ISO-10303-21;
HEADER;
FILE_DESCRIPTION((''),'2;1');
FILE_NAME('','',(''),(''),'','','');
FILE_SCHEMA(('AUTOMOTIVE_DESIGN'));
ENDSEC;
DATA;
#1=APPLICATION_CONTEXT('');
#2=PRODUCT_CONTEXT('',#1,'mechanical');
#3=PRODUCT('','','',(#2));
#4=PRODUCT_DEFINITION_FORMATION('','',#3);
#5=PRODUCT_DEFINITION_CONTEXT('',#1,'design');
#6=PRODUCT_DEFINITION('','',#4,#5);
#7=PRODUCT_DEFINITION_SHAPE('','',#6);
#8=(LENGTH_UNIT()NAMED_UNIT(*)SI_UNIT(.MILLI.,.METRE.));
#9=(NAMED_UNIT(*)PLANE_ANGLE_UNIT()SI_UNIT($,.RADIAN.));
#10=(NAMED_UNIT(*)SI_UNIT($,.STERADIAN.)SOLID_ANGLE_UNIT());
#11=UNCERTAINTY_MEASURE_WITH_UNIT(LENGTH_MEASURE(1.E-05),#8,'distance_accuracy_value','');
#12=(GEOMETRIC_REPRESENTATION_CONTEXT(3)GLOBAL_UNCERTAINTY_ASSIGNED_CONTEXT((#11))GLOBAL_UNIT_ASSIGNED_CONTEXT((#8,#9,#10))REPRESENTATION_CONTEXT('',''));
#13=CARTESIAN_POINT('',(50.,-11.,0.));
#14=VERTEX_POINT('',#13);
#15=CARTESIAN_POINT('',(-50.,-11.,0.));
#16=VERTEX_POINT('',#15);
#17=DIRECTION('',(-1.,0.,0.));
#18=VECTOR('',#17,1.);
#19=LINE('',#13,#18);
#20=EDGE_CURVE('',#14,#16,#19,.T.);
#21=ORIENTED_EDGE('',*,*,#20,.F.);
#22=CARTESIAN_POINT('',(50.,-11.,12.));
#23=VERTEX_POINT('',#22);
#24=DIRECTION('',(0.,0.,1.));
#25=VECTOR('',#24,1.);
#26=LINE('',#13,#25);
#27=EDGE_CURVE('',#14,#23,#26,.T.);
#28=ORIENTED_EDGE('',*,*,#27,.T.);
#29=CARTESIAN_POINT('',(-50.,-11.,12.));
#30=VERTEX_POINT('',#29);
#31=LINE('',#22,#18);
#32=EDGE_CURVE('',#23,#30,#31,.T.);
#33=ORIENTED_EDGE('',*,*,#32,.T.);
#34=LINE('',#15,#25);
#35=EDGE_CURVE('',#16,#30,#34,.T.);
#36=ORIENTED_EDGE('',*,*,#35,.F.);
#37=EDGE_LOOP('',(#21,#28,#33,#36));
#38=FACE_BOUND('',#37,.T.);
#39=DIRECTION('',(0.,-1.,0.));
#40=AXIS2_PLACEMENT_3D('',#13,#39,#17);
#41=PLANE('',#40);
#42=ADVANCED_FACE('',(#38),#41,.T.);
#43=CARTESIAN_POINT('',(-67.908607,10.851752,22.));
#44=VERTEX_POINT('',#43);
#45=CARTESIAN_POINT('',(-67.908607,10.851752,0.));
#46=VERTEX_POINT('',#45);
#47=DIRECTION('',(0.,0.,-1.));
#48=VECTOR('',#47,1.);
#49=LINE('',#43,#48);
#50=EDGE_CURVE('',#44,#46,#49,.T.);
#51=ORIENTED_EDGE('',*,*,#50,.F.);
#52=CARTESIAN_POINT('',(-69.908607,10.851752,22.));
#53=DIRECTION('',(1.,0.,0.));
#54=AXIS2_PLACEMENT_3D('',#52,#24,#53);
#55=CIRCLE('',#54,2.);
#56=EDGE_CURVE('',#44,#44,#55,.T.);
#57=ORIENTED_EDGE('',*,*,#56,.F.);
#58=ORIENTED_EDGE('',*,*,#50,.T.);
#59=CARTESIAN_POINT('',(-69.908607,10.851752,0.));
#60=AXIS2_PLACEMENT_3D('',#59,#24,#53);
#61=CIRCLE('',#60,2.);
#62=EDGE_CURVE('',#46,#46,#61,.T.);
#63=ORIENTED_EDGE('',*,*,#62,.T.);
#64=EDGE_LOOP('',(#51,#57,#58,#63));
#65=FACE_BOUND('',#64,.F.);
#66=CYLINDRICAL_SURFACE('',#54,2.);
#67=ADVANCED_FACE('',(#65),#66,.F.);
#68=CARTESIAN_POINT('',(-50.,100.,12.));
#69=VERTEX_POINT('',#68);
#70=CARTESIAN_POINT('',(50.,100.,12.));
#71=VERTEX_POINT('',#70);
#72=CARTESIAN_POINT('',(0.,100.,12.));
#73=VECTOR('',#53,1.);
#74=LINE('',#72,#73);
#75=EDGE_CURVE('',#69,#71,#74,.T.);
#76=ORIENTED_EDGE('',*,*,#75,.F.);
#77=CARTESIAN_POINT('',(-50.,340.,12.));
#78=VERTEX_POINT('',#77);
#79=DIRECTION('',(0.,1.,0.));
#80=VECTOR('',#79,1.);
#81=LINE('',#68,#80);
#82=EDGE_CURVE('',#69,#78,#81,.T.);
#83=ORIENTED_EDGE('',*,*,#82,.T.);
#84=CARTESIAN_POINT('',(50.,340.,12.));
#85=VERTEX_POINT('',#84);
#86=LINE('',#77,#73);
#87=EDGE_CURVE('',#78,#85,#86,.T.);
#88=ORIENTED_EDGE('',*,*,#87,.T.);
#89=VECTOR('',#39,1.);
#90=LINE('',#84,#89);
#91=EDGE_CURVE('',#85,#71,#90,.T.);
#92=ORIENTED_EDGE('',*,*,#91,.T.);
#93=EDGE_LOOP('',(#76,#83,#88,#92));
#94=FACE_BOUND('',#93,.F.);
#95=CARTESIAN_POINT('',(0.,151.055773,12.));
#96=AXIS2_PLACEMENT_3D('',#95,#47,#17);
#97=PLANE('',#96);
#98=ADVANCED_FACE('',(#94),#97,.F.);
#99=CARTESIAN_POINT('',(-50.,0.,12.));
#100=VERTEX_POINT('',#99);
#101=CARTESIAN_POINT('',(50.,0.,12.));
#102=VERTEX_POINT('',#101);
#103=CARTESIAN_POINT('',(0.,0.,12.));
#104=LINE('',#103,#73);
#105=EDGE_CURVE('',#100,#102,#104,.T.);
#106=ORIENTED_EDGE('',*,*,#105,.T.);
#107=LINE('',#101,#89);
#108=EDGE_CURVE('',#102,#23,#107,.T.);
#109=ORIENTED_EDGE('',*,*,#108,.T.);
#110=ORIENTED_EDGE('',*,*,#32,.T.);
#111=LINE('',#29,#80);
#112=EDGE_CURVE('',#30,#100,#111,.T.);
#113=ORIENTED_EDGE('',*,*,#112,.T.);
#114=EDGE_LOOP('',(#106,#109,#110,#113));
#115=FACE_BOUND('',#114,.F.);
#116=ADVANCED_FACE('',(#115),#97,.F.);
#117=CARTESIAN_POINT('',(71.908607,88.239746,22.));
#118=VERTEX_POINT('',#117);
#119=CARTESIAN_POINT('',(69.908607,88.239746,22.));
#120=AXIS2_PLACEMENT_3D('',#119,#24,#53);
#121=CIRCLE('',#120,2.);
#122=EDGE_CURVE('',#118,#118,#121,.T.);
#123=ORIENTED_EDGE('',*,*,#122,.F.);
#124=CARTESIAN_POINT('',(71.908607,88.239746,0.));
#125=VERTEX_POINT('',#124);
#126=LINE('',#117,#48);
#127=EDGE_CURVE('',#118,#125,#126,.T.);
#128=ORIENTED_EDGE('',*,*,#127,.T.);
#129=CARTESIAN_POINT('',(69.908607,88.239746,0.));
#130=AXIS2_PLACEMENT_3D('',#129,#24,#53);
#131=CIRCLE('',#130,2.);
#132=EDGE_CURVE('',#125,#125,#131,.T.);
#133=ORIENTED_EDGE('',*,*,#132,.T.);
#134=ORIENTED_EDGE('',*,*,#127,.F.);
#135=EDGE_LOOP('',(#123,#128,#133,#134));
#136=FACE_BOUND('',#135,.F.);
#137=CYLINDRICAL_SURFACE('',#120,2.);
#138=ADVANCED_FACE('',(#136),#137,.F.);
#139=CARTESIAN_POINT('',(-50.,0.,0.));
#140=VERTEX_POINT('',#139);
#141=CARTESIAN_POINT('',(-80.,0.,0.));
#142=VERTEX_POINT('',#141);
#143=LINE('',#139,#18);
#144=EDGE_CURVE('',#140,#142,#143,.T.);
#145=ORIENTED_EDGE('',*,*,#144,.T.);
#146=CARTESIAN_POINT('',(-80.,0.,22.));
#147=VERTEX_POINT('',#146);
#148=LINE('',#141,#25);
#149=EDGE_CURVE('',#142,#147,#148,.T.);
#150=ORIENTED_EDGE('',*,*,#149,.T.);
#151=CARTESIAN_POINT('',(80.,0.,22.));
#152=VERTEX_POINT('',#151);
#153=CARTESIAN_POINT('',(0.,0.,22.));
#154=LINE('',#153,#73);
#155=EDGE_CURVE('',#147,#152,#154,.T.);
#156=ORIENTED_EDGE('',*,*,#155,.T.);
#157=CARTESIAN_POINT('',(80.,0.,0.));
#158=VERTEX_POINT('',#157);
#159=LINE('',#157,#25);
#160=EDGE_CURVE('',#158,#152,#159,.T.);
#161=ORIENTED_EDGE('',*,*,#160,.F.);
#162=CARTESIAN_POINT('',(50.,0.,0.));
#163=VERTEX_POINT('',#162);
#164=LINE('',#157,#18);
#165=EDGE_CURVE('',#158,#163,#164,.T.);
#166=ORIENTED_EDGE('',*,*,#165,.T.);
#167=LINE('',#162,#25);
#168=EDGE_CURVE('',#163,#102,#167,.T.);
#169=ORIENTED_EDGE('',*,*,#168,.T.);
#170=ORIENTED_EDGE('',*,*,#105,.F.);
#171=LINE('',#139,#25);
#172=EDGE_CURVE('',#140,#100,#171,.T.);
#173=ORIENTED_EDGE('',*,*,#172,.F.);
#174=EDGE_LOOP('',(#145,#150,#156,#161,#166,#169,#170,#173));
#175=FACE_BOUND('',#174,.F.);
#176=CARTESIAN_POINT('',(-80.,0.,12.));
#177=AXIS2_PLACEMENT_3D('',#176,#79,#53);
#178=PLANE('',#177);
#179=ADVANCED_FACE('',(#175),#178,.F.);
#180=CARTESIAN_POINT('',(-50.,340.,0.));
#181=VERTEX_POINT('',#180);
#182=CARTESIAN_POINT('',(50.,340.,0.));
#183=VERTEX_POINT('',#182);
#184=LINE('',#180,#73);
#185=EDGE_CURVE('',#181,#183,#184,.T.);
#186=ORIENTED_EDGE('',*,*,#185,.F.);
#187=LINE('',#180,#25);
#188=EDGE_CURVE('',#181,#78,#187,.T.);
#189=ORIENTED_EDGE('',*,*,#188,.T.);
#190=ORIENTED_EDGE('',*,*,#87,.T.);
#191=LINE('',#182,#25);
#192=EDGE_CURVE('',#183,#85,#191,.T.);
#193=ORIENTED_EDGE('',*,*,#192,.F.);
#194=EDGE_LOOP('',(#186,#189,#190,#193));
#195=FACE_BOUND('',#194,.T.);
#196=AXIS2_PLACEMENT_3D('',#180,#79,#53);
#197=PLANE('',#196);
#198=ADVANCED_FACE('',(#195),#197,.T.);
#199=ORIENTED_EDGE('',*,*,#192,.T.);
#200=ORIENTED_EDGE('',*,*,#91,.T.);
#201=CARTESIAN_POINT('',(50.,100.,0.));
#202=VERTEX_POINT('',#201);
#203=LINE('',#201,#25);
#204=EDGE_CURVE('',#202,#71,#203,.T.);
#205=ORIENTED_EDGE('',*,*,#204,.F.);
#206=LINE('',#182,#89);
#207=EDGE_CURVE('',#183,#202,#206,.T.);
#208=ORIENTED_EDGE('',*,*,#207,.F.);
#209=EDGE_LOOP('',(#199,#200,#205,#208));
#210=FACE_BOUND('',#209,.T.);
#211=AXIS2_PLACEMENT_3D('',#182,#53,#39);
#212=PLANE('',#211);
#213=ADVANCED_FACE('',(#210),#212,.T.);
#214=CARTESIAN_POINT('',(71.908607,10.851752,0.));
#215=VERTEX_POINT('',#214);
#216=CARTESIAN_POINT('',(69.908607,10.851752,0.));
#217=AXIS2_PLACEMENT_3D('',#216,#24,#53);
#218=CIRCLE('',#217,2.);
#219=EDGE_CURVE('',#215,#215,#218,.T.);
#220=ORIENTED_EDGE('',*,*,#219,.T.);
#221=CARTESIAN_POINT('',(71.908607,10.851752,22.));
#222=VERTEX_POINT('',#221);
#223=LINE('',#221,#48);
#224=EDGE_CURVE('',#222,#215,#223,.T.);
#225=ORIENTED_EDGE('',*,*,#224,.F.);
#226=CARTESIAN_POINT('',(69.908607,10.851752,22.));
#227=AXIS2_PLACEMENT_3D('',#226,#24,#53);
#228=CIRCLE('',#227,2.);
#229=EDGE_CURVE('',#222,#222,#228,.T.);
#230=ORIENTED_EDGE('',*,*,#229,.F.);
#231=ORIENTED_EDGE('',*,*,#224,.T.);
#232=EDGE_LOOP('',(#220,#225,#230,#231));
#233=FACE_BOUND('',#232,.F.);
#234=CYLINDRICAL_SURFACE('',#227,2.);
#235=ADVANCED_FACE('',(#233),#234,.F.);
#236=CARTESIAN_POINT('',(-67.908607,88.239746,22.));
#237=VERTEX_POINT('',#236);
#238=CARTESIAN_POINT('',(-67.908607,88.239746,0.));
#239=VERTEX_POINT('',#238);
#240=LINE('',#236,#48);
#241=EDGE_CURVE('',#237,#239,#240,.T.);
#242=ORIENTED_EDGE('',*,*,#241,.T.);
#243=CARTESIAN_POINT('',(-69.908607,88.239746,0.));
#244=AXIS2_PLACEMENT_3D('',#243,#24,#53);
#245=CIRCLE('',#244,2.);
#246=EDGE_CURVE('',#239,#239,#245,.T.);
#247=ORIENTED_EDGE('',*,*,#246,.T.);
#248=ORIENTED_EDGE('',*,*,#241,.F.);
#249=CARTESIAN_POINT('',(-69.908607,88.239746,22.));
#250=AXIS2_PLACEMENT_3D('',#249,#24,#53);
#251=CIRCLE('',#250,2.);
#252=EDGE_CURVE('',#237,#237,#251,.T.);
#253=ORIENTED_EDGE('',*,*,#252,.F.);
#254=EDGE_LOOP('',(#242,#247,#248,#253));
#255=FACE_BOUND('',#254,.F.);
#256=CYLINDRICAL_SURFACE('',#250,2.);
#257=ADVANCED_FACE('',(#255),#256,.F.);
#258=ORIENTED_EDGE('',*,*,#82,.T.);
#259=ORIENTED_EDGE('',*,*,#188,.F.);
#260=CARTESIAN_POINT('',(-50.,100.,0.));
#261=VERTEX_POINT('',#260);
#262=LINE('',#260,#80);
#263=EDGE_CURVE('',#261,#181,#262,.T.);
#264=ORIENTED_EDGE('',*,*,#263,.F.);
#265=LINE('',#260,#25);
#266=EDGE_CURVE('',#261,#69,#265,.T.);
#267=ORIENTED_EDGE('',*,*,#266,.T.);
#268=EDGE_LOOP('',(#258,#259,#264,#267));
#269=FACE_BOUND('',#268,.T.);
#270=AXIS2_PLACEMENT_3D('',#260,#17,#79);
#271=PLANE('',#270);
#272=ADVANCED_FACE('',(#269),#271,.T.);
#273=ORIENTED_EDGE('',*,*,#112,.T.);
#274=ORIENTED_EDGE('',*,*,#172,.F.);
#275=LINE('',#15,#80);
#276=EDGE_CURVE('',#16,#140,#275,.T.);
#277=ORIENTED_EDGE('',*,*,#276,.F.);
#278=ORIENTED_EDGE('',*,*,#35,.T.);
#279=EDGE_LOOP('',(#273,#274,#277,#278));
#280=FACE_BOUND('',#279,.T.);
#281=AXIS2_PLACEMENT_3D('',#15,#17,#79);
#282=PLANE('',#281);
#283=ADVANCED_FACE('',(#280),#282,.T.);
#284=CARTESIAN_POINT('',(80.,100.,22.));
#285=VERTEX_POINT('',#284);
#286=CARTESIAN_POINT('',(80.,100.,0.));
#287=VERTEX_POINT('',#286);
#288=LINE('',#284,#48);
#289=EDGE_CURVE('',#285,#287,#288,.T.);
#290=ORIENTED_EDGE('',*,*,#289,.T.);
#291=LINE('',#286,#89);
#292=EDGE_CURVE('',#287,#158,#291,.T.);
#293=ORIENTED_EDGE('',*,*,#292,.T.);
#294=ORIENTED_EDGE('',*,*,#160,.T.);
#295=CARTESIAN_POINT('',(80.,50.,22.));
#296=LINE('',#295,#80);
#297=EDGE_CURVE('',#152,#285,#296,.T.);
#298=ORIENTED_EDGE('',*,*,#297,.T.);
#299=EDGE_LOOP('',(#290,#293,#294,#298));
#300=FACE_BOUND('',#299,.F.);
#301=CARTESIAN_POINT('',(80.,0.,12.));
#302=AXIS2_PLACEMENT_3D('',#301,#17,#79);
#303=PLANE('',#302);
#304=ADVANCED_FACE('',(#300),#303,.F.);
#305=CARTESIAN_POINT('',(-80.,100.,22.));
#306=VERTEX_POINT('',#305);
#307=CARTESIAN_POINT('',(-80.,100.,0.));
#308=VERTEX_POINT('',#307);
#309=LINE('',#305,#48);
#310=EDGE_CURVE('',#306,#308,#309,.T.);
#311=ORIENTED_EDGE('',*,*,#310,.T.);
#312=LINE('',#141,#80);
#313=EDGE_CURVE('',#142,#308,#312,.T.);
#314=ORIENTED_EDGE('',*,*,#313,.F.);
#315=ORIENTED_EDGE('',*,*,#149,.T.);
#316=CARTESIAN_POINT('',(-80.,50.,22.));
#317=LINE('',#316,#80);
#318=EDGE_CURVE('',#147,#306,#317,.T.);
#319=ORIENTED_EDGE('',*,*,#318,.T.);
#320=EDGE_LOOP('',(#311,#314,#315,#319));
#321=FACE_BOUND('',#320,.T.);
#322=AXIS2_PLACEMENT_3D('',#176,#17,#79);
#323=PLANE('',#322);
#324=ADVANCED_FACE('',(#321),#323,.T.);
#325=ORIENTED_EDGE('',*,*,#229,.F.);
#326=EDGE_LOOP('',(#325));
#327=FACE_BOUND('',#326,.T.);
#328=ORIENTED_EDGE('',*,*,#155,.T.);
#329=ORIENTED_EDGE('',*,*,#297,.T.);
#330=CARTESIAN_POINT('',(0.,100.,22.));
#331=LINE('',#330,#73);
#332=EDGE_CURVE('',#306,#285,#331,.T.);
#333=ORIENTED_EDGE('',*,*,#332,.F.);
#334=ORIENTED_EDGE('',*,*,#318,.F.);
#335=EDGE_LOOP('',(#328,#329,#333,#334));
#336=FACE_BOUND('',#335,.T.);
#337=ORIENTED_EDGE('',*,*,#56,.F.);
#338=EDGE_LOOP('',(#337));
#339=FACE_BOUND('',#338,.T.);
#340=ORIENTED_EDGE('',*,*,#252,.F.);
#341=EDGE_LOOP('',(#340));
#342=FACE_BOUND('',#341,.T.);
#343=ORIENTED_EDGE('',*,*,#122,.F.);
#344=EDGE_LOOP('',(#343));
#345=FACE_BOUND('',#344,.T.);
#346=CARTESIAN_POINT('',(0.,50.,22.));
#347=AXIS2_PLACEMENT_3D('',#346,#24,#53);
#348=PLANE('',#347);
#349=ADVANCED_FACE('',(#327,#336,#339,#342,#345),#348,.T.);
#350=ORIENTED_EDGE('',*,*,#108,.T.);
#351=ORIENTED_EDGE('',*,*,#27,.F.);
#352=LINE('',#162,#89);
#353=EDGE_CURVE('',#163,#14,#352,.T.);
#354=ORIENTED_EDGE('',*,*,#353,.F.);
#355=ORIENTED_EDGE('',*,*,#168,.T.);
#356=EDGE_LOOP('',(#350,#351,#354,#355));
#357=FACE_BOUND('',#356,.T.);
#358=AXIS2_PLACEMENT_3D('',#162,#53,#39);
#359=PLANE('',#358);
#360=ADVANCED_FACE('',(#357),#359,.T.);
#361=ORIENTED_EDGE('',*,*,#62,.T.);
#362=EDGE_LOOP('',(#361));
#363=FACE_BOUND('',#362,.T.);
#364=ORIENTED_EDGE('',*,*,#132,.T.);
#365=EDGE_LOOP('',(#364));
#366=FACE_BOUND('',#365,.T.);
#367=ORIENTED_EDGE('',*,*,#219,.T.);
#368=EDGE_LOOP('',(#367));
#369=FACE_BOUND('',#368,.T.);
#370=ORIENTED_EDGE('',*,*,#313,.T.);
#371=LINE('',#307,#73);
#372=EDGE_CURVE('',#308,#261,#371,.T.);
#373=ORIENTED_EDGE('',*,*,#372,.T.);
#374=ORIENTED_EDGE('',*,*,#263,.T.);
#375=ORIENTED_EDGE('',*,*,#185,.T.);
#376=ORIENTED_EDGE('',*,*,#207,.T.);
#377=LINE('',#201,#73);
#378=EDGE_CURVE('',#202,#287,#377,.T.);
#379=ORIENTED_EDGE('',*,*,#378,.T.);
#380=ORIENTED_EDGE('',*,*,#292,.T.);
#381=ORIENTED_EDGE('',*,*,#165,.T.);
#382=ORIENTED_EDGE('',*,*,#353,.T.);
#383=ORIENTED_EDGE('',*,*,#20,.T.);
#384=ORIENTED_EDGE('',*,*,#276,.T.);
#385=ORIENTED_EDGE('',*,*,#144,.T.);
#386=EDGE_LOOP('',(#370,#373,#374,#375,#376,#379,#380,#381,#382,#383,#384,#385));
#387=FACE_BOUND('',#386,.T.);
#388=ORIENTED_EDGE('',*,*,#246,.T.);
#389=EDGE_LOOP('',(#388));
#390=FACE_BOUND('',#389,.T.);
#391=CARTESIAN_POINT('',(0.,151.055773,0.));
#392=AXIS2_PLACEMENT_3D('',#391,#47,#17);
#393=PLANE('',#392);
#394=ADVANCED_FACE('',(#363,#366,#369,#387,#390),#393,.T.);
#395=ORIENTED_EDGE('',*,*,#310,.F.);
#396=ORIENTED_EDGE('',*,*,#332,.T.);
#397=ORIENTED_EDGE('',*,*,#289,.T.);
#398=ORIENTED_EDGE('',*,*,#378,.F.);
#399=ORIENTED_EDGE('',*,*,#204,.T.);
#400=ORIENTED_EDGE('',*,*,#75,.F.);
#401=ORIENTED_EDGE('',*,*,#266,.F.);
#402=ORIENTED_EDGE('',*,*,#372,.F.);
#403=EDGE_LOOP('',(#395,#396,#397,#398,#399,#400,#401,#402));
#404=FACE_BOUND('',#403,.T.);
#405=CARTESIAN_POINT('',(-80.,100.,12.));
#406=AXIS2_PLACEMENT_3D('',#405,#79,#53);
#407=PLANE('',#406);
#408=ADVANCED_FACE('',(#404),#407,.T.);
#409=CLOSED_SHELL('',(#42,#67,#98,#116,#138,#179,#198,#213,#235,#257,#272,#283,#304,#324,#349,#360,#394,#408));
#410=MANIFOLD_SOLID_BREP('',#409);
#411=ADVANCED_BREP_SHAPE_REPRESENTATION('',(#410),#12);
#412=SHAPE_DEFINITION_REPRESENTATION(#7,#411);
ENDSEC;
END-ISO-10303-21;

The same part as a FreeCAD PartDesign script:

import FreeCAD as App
import Part
import Sketcher

V = App.Vector

doc = App.newDocument("Part")
body = doc.addObject("PartDesign::Body", "Body")

# Sketch on XY plane
sketch1 = body.newObject("Sketcher::SketchObject", "Sketch")
sketch1.AttachmentSupport = (doc.getObject("XY_Plane"), [""])
sketch1.MapMode = "FlatFace"
sketch1.addGeometry([
    Part.LineSegment(V(50, 340, 0), V(-50, 340, 0)),  # 0
    Part.LineSegment(V(-50, 340, 0), V(-50, 100, 0)),  # 1
    Part.LineSegment(V(-50, 100, 0), V(-80, 100, 0)),  # 2
    Part.LineSegment(V(-80, 100, 0), V(-80, 0, 0)),  # 3
    Part.LineSegment(V(-80, 0, 0), V(-50, 0, 0)),  # 4
    Part.LineSegment(V(-50, 0, 0), V(-50, -11, 0)),  # 5
    Part.LineSegment(V(-50, -11, 0), V(50, -11, 0)),  # 6
    Part.LineSegment(V(50, -11, 0), V(50, 0, 0)),  # 7
    Part.LineSegment(V(50, 0, 0), V(80, 0, 0)),  # 8
    Part.LineSegment(V(80, 0, 0), V(80, 100, 0)),  # 9
    Part.LineSegment(V(80, 100, 0), V(50, 100, 0)),  # 10
    Part.LineSegment(V(50, 100, 0), V(50, 340, 0)),  # 11
], False)
sketch1.addConstraint([
    Sketcher.Constraint("Coincident", 0, 2, 1, 1),
    Sketcher.Constraint("Coincident", 1, 2, 2, 1),
    Sketcher.Constraint("Coincident", 2, 2, 3, 1),
    Sketcher.Constraint("Coincident", 3, 2, 4, 1),
    Sketcher.Constraint("Coincident", 4, 2, 5, 1),
    Sketcher.Constraint("Coincident", 5, 2, 6, 1),
    Sketcher.Constraint("Coincident", 6, 2, 7, 1),
    Sketcher.Constraint("Coincident", 7, 2, 8, 1),
    Sketcher.Constraint("Coincident", 8, 2, 9, 1),
    Sketcher.Constraint("Coincident", 9, 2, 10, 1),
    Sketcher.Constraint("Coincident", 10, 2, 11, 1),
    Sketcher.Constraint("Coincident", 11, 2, 0, 1),
    Sketcher.Constraint("Horizontal", 0),
    Sketcher.Constraint("Vertical", 1),
    Sketcher.Constraint("Horizontal", 2),
    Sketcher.Constraint("Vertical", 3),
    Sketcher.Constraint("Horizontal", 4),
    Sketcher.Constraint("Vertical", 5),
    Sketcher.Constraint("Horizontal", 6),
    Sketcher.Constraint("Vertical", 7),
    Sketcher.Constraint("Horizontal", 8),
    Sketcher.Constraint("Vertical", 9),
    Sketcher.Constraint("Horizontal", 10),
    Sketcher.Constraint("Vertical", 11),
    Sketcher.Constraint("Symmetric", 4, 2, 7, 2, -1, 1),
    Sketcher.Constraint("Symmetric", 3, 2, 8, 2, -2),
    Sketcher.Constraint("Symmetric", 1, 2, 10, 2, -2),
    Sketcher.Constraint("Vertical", 1, 2, 4, 2),
    Sketcher.Constraint("Equal", 6, 3),
    Sketcher.Constraint("DistanceX", 0, 2, 0, 1, 100.0),
    Sketcher.Constraint("DistanceX", 2, 2, 2, 1, 30.0),
    Sketcher.Constraint("DistanceY", 1, 2, 1, 1, 240.0),
    Sketcher.Constraint("DistanceY", 5, 2, 5, 1, 11.0),
])
pad1 = body.newObject("PartDesign::Pad", "Pad")
pad1.Profile = sketch1
pad1.Length = 12

# Sketch on XY plane
sketch2 = body.newObject("Sketcher::SketchObject", "Sketch001")
sketch2.AttachmentSupport = (doc.getObject("XY_Plane"), [""])
sketch2.MapMode = "FlatFace"
sketch2.AttachmentOffset = App.Placement(V(0, 0, 12), App.Rotation())
sketch2.addGeometry([
    Part.LineSegment(V(-80, 100, 0), V(-80, 0, 0)),
    Part.LineSegment(V(-80, 0, 0), V(80, 0, 0)),
    Part.LineSegment(V(80, 0, 0), V(80, 100, 0)),
    Part.LineSegment(V(80, 100, 0), V(-80, 100, 0)),
], False)
sketch2.addConstraint([
    Sketcher.Constraint("Coincident", 0, 2, 1, 1),
    Sketcher.Constraint("Coincident", 1, 2, 2, 1),
    Sketcher.Constraint("Coincident", 2, 2, 3, 1),
    Sketcher.Constraint("Coincident", 3, 2, 0, 1),
    Sketcher.Constraint("Vertical", 0),
    Sketcher.Constraint("Horizontal", 1),
    Sketcher.Constraint("Vertical", 2),
    Sketcher.Constraint("Horizontal", 3),
    Sketcher.Constraint("Symmetric", 0, 2, 1, 2, -1, 1),
    Sketcher.Constraint("DistanceX", 1, 1, 1, 2, 160.0),
    Sketcher.Constraint("DistanceY", 0, 2, 0, 1, 100.0),
])
pad2 = body.newObject("PartDesign::Pad", "Pad001")
pad2.Profile = sketch2
pad2.Length = 10

# Sketch on XY plane
sketch3 = body.newObject("Sketcher::SketchObject", "Sketch002")
sketch3.AttachmentSupport = (doc.getObject("XY_Plane"), [""])
sketch3.MapMode = "FlatFace"
sketch3.AttachmentOffset = App.Placement(V(0, 0, 22), App.Rotation())
sketch3.addGeometry([
    Part.Circle(V(-69.9, 88.2, 0), V(0, 0, 1), 2),
    Part.Circle(V(69.9, 88.2, 0), V(0, 0, 1), 2),
    Part.Circle(V(69.9, 10.9, 0), V(0, 0, 1), 2),
    Part.Circle(V(-69.9, 10.9, 0), V(0, 0, 1), 2),
], False)
sketch3.addConstraint([
    Sketcher.Constraint("Equal", 0, 1),
    Sketcher.Constraint("Equal", 1, 2),
    Sketcher.Constraint("Equal", 2, 3),
    Sketcher.Constraint("Symmetric", 0, 3, 1, 3, -2),
    Sketcher.Constraint("Symmetric", 2, 3, 3, 3, -2),
    Sketcher.Constraint("Vertical", 1, 3, 2, 3),
    Sketcher.Constraint("Diameter", 0, 4.0),
    Sketcher.Constraint("DistanceX", 0, 3, -1, 1, 69.908607),
    Sketcher.Constraint("DistanceY", -1, 1, 0, 3, 88.239746),
    Sketcher.Constraint("DistanceY", -1, 1, 2, 3, 10.851752),
])
pocket1 = body.newObject("PartDesign::Pocket", "Pocket")
pocket1.Profile = sketch3
pocket1.Type = "ThroughAll"

doc.recompute()
